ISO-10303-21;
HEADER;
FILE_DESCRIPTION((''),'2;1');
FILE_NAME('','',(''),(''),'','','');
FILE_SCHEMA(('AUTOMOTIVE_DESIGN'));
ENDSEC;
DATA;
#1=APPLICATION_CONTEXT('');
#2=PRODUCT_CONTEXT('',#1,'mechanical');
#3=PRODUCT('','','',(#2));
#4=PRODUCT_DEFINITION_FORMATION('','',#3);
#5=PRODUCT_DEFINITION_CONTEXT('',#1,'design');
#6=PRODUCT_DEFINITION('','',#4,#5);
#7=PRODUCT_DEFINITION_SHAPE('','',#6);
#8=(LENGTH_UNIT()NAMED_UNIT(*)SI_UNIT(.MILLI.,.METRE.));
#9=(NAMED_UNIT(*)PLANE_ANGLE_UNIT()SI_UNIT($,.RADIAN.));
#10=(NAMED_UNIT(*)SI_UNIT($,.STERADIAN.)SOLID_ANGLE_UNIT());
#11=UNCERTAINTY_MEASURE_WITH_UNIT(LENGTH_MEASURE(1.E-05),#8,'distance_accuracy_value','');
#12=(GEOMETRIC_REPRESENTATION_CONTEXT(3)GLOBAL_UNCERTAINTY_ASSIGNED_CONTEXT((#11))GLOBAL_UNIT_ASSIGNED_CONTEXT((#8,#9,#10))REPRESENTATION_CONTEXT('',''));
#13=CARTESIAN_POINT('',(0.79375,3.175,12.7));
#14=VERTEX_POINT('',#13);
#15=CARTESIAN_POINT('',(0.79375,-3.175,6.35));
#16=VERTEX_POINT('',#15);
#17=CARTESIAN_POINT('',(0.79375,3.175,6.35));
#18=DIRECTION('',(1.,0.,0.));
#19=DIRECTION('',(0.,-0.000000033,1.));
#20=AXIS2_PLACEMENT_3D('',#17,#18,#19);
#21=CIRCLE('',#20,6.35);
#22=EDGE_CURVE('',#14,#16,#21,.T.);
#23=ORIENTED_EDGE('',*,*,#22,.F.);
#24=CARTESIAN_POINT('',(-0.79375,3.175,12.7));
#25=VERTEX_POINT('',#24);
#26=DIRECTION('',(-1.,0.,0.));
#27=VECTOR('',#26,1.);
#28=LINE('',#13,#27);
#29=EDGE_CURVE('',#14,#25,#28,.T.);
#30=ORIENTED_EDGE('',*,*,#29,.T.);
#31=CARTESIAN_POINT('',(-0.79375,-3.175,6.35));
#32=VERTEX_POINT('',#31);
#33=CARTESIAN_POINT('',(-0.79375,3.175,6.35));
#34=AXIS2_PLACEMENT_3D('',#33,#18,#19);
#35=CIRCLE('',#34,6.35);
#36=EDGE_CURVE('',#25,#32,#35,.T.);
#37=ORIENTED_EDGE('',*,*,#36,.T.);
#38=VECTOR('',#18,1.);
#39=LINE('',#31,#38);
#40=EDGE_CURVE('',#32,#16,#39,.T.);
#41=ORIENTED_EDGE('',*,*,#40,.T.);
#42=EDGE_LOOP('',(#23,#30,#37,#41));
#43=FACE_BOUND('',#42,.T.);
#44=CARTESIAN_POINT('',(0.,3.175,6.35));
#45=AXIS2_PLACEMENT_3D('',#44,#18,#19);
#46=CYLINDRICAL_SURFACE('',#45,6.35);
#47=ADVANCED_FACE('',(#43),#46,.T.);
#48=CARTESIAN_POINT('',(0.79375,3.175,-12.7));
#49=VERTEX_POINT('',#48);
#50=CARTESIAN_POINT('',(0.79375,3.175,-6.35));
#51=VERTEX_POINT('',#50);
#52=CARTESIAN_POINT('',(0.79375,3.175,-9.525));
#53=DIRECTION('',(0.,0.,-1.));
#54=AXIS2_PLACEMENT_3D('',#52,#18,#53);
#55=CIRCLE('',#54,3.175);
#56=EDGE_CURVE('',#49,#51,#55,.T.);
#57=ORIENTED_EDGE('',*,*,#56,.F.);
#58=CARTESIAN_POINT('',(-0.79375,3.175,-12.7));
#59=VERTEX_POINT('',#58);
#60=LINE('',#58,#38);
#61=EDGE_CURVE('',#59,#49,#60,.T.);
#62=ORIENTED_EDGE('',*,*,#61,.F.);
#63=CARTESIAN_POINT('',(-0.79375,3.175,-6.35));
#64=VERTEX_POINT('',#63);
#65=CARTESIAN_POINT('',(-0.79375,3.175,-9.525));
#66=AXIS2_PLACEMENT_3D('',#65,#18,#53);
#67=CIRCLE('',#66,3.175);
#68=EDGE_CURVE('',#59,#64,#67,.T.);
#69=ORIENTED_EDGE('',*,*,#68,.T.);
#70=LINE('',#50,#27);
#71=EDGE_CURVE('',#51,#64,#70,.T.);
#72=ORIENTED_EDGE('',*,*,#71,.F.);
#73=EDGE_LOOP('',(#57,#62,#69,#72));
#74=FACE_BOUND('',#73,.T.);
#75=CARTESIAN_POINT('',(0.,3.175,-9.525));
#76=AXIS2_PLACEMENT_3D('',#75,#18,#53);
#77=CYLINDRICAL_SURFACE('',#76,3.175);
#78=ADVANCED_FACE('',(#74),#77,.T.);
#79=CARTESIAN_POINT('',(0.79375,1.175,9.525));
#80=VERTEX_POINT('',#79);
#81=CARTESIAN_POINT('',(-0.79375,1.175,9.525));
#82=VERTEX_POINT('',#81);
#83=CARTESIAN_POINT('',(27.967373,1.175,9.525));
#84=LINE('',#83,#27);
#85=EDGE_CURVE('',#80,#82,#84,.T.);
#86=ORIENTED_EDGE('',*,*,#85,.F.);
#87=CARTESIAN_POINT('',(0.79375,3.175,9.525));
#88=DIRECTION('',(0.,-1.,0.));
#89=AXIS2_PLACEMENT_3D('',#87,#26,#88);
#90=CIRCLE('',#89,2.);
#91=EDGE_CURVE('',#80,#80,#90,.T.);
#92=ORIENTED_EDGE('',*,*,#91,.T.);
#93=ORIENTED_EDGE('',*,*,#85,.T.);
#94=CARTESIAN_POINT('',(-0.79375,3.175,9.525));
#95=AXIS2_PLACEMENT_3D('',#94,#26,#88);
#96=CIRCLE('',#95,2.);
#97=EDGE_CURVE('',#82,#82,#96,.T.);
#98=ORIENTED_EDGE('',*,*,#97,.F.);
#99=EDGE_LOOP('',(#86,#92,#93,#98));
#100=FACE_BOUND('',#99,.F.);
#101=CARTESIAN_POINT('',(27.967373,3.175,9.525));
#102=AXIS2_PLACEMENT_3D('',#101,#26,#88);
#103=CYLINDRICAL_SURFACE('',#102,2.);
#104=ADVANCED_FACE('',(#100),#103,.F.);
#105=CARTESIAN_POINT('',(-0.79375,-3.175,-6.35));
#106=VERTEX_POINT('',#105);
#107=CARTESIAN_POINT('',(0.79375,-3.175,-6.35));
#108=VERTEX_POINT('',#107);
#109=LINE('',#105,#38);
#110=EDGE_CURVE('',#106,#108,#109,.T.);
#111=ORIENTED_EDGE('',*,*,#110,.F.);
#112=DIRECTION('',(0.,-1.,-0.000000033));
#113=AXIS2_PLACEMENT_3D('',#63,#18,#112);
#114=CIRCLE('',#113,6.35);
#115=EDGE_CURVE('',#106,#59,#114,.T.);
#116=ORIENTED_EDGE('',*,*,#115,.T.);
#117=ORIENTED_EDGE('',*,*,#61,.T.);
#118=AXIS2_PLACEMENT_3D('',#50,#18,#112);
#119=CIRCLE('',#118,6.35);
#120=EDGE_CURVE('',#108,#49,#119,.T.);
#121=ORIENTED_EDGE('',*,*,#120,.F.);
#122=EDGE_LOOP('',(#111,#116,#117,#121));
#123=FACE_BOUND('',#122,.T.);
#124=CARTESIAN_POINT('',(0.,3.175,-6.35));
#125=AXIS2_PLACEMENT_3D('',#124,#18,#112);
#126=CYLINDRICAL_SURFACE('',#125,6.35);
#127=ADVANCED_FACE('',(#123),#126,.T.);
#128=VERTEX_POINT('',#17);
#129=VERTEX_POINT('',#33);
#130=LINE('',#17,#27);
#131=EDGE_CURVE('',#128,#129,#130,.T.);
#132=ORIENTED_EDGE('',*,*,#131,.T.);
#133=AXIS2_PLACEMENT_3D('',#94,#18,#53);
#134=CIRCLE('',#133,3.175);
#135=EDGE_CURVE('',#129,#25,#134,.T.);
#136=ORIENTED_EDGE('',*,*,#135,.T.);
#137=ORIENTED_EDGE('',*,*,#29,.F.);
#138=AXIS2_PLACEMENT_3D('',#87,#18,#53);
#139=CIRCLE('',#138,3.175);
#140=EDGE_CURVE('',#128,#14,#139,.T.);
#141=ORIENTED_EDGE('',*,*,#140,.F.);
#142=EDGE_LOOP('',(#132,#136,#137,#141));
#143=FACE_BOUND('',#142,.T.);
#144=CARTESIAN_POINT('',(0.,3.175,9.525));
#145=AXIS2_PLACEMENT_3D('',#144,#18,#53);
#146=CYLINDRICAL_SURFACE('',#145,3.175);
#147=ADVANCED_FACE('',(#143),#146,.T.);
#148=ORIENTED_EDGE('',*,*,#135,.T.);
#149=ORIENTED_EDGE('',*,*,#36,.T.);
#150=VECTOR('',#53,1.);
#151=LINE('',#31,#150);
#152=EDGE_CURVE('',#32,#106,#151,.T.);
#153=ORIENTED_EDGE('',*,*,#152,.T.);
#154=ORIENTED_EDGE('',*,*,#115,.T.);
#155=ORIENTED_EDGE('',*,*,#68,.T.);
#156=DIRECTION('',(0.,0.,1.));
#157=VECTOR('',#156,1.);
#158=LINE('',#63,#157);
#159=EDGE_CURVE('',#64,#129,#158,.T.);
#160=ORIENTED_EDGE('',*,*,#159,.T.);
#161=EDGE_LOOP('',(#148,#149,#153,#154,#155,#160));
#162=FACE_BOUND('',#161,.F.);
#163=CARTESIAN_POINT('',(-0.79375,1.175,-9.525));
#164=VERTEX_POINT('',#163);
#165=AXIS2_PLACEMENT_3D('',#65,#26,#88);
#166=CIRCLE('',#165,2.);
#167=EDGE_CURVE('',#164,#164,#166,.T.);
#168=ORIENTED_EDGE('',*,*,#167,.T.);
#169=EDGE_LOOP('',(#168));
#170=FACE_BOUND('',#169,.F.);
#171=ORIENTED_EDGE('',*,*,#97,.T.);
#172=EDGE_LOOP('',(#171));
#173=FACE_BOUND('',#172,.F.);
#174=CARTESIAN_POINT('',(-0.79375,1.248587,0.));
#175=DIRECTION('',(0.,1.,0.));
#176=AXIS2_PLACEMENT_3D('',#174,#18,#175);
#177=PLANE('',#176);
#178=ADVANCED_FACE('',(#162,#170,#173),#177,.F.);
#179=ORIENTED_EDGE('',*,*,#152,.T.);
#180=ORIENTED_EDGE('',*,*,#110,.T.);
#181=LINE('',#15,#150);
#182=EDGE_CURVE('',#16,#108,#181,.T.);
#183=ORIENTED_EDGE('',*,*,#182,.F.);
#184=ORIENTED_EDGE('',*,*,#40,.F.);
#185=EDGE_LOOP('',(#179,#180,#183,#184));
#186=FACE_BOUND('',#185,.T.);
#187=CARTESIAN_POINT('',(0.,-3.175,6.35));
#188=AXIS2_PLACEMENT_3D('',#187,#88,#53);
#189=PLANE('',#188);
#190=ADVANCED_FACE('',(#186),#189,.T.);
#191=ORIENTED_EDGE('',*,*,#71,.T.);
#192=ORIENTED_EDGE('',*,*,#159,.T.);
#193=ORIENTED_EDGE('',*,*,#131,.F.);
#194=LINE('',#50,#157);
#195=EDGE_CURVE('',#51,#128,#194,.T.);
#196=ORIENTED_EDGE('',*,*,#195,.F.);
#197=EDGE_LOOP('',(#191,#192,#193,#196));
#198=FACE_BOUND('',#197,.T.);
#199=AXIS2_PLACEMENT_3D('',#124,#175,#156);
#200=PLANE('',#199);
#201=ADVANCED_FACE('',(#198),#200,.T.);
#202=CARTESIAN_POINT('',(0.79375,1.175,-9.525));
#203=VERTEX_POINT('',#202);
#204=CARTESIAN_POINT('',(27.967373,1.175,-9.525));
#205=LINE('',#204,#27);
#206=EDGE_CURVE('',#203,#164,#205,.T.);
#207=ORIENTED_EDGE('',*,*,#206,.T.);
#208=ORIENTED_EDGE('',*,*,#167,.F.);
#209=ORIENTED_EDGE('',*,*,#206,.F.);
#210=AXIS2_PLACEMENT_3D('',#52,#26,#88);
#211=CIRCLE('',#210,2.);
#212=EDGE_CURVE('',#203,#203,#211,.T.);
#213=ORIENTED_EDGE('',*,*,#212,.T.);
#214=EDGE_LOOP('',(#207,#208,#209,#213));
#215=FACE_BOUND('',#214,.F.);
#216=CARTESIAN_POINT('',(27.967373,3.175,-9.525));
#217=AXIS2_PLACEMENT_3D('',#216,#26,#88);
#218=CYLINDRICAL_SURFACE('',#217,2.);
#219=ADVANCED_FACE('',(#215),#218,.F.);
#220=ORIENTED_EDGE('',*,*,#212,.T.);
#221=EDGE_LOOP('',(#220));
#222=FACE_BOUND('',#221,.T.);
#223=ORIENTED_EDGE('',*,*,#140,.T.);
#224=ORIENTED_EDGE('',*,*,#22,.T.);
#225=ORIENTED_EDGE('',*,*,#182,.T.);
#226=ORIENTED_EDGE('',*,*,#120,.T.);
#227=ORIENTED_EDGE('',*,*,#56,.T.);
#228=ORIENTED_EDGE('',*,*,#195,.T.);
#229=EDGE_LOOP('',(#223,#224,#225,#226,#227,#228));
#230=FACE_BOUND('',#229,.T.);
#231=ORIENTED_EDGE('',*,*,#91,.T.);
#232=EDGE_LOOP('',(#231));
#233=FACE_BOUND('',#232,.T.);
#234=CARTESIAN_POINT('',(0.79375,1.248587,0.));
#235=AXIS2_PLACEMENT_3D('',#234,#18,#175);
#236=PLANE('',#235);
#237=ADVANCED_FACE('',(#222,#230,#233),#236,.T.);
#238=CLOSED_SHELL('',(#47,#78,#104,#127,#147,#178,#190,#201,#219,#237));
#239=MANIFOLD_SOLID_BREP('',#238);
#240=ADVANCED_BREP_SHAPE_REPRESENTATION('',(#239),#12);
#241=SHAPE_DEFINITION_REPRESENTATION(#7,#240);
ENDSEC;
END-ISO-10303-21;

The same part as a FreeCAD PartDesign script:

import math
import FreeCAD as App
import Part
import Sketcher
Q = App.Units.Quantity

doc = App.newDocument("Part")
body = doc.addObject("PartDesign::Body", "Body")

# Sketch on YZ plane
sketch1 = body.newObject("Sketcher::SketchObject", "Sketch")
sketch1.AttachmentSupport = (doc.getObject("YZ_Plane"), [""])
sketch1.MapMode = "FlatFace"
sketch1.addGeometry(Part.ArcOfCircle(Part.Circle(App.Vector(3.2, 6.3, 0), App.Vector(0, 0, 1), 6.4), math.radians(90), math.radians(180)), False)
sketch1.addGeometry(Part.LineSegment(App.Vector(-3.2, 6.3, 0), App.Vector(-3.2, -6.3, 0)), False)
sketch1.addGeometry(Part.ArcOfCircle(Part.Circle(App.Vector(3.2, -6.3, 0), App.Vector(0, 0, 1), 6.4), math.radians(-180), math.radians(-90)), False)
sketch1.addGeometry(Part.ArcOfCircle(Part.Circle(App.Vector(3.2, -9.5, 0), App.Vector(0, 0, 1), 3.2), math.radians(-90), math.radians(90)), False)
sketch1.addGeometry(Part.LineSegment(App.Vector(3.2, -6.3, 0), App.Vector(3.2, 6.3, 0)), False)
sketch1.addGeometry(Part.ArcOfCircle(Part.Circle(App.Vector(3.2, 9.5, 0), App.Vector(0, 0, 1), 3.2), math.radians(-90), math.radians(90)), False)
sketch1.addConstraint(Sketcher.Constraint("Tangent", 0, 2, 1, 1))
sketch1.addConstraint(Sketcher.Constraint("Tangent", 1, 2, 2, 1))
sketch1.addConstraint(Sketcher.Constraint("Tangent", 2, 2, 3, 1))
sketch1.addConstraint(Sketcher.Constraint("Coincident", 3, 2, 4, 1))
sketch1.addConstraint(Sketcher.Constraint("Coincident", 4, 2, 5, 1))
sketch1.addConstraint(Sketcher.Constraint("Tangent", 5, 2, 0, 1))
sketch1.addConstraint(Sketcher.Constraint("Vertical", 1))
sketch1.addConstraint(Sketcher.Constraint("Vertical", 4))
sketch1.addConstraint(Sketcher.Constraint("Coincident", 3, 2, 2, 3))
sketch1.addConstraint(Sketcher.Constraint("Coincident", 4, 2, 0, 3))
sketch1.addConstraint(Sketcher.Constraint("Symmetric", 0, 2, 3, 2, -1, 1))
sketch1.addConstraint(Sketcher.Constraint("Vertical", 2, 3, 3, 3))
sketch1.addConstraint(Sketcher.Constraint("Vertical", 3, 3, 5, 3))
sketch1.addConstraint(Sketcher.Constraint("Radius", 0, Q("0.25 in")))
sketch1.addConstraint(Sketcher.Constraint("DistanceY", 1, 2, 1, 1, Q("0.5 in")))
pad1 = body.newObject("PartDesign::Pad", "Pad")
pad1.Profile = sketch1
pad1.Length = Q("0.0625 in")
pad1.Midplane = True

# Sketch on YZ plane
sketch2 = body.newObject("Sketcher::SketchObject", "Sketch001")
sketch2.AttachmentSupport = (doc.getObject("YZ_Plane"), [""])
sketch2.MapMode = "FlatFace"
sketch2.AttachmentOffset = App.Placement(App.Vector(0, 0, 0.03125 * 25.4), App.Rotation())
sketch2.addGeometry(Part.Circle(App.Vector(3.2, 9.5, 0), App.Vector(0, 0, 1), 2), False)
sketch2.addGeometry(Part.Circle(App.Vector(3.2, -9.5, 0), App.Vector(0, 0, 1), 2), False)
sketch2.addConstraint(Sketcher.Constraint("Equal", 0, 1))
sketch2.addConstraint(Sketcher.Constraint("Symmetric", 0, 3, 1, 3, -1))
sketch2.addConstraint(Sketcher.Constraint("Diameter", 0, 4.0))
sketch2.addConstraint(Sketcher.Constraint("DistanceY", 1, 3, 0, 3, Q("0.75 in")))
sketch2.addConstraint(Sketcher.Constraint("DistanceX", -1, 1, 0, 3, Q("0.125 in")))
doc.recompute()
hole = body.newObject("PartDesign::Hole", "Hole")
hole.Profile = sketch2
hole.ThreadType = "None"
hole.Diameter = 4
hole.DepthType = "ThroughAll"

doc.recompute()
